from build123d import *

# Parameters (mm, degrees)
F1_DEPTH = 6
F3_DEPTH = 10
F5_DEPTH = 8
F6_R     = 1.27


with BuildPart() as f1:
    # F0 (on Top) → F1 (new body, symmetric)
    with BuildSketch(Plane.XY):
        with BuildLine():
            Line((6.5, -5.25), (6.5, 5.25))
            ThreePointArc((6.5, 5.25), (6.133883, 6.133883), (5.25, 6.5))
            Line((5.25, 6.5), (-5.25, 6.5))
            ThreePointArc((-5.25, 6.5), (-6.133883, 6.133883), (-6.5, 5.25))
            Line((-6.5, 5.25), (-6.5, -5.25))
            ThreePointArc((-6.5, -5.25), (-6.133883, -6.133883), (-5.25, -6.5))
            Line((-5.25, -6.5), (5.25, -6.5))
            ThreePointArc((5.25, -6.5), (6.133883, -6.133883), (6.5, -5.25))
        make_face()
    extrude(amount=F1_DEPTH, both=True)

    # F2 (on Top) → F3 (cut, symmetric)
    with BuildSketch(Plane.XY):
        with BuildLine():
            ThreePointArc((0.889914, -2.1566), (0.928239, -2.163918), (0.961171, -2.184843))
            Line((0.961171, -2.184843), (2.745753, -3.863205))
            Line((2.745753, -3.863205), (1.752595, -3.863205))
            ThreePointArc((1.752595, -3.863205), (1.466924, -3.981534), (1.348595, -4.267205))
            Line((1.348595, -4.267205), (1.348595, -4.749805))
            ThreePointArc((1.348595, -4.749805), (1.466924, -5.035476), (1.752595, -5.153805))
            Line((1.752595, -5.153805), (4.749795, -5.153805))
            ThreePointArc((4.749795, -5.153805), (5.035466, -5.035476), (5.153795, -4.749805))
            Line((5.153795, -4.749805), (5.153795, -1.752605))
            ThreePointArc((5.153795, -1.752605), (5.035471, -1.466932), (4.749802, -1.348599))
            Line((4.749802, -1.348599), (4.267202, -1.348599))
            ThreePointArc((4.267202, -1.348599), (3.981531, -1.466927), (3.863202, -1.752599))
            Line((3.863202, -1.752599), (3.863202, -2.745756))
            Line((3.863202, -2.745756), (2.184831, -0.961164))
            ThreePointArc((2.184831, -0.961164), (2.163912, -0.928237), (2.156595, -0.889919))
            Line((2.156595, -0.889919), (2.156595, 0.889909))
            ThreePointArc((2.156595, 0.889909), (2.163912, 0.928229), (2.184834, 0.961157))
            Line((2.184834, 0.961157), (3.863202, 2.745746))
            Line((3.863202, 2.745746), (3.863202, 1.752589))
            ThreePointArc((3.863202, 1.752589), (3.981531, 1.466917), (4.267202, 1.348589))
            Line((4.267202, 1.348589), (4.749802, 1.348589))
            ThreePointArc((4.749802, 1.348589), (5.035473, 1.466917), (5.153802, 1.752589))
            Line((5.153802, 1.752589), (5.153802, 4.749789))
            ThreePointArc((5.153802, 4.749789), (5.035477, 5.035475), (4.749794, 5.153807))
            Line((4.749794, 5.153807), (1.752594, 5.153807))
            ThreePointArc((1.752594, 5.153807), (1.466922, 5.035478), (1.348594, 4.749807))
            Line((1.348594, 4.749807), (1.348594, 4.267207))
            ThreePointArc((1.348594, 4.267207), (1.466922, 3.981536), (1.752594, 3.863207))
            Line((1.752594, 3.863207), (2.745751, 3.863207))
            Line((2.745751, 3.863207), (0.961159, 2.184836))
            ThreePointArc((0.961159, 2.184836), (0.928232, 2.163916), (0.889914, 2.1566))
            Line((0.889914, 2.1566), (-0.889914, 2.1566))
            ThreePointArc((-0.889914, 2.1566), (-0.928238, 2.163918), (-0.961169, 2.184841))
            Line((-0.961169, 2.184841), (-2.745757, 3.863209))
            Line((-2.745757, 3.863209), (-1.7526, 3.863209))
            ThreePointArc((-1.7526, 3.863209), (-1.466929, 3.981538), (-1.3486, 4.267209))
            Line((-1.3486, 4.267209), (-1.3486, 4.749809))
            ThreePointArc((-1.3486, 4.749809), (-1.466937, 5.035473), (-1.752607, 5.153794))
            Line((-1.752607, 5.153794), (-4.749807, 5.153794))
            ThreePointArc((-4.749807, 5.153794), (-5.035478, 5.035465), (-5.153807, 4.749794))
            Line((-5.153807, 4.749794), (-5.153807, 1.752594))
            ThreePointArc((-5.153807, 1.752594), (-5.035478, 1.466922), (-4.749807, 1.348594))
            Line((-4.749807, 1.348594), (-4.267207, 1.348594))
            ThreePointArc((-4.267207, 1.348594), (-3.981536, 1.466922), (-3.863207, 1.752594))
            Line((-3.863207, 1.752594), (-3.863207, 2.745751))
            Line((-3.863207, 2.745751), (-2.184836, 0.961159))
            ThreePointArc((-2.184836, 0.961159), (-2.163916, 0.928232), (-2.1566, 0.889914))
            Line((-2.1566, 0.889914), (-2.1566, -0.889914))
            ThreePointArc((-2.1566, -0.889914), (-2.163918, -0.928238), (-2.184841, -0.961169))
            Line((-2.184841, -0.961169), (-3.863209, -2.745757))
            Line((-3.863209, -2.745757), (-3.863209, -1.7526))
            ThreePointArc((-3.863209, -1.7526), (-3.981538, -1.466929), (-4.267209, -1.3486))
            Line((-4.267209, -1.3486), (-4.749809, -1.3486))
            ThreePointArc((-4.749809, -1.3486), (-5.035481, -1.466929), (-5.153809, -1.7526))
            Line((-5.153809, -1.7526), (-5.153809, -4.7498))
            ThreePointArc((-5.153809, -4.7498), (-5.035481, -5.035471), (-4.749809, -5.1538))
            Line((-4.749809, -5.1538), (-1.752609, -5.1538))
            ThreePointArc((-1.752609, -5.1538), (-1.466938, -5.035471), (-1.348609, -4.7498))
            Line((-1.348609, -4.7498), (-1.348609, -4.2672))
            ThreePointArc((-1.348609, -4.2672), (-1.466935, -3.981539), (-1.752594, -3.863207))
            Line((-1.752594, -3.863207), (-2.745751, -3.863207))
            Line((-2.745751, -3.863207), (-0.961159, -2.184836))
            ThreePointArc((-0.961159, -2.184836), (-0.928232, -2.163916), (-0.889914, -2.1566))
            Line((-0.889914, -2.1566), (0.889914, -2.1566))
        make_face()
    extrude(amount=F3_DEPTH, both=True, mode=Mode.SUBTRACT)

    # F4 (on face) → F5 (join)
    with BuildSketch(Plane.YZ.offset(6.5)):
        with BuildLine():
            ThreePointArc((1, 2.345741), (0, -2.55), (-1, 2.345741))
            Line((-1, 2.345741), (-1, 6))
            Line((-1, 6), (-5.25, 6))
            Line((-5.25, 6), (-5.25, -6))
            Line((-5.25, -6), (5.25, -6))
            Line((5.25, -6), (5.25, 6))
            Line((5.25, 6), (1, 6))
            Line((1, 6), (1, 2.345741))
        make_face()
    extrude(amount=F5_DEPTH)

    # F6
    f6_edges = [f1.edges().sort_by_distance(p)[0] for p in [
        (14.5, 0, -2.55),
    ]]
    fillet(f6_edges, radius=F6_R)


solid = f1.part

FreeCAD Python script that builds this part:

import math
import FreeCAD as App
import Part
import Sketcher


def edges_at(feature, points):
    """Names of the edges that pass closest to the given points."""
    edges = feature.Shape.Edges
    near = lambda p: min(range(len(edges)), key=lambda i: edges[i].distToShape(Part.Vertex(*p))[0])
    return sorted({f"Edge{near(p) + 1}" for p in points})

doc = App.newDocument("Part")
body = doc.addObject("PartDesign::Body", "Body")

sketch1 = body.newObject("Sketcher::SketchObject", "Sketch")
sketch1.AttachmentSupport = (doc.getObject("XY_Plane"), [""])
sketch1.MapMode = "FlatFace"
sketch1.addGeometry([
    Part.LineSegment(App.Vector(6.5, -5.2, 0), App.Vector(6.5, 5.2, 0)),
    Part.ArcOfCircle(Part.Circle(App.Vector(5.2, 5.2, 0), App.Vector(0, 0, 1), 1.3), math.radians(0), math.radians(90)),
    Part.LineSegment(App.Vector(5.2, 6.5, 0), App.Vector(-5.2, 6.5, 0)),
    Part.ArcOfCircle(Part.Circle(App.Vector(-5.2, 5.2, 0), App.Vector(0, 0, 1), 1.3), math.radians(90), math.radians(180)),
    Part.LineSegment(App.Vector(-6.5, 5.2, 0), App.Vector(-6.5, -5.2, 0)),
    Part.ArcOfCircle(Part.Circle(App.Vector(-5.2, -5.2, 0), App.Vector(0, 0, 1), 1.3), math.radians(-180), math.radians(-90)),
    Part.LineSegment(App.Vector(-5.2, -6.5, 0), App.Vector(5.2, -6.5, 0)),
    Part.ArcOfCircle(Part.Circle(App.Vector(5.2, -5.2, 0), App.Vector(0, 0, 1), 1.3), math.radians(-90), math.radians(0)),
], False)
sketch1.addConstraint([
    Sketcher.Constraint("Tangent", 0, 2, 1, 1),
    Sketcher.Constraint("Tangent", 1, 2, 2, 1),
    Sketcher.Constraint("Tangent", 2, 2, 3, 1),
    Sketcher.Constraint("Tangent", 3, 2, 4, 1),
    Sketcher.Constraint("Tangent", 4, 2, 5, 1),
    Sketcher.Constraint("Tangent", 5, 2, 6, 1),
    Sketcher.Constraint("Tangent", 6, 2, 7, 1),
    Sketcher.Constraint("Tangent", 7, 2, 0, 1),
    Sketcher.Constraint("Vertical", 0),
    Sketcher.Constraint("Horizontal", 2),
    Sketcher.Constraint("Vertical", 4),
    Sketcher.Constraint("Horizontal", 6),
    Sketcher.Constraint("Equal", 1, 3),
    Sketcher.Constraint("Equal", 3, 5),
    Sketcher.Constraint("Equal", 5, 7),
    Sketcher.Constraint("Symmetric", 1, 3, 5, 3, -1, 1),
    Sketcher.Constraint("Equal", 6, 0),
    Sketcher.Constraint("Radius", 1, 1.250002),
    Sketcher.Constraint("DistanceX", 2, 2, 2, 1, 10.5),
])
pad1 = body.newObject("PartDesign::Pad", "Pad")
pad1.Profile = sketch1
pad1.Length = 12
pad1.Midplane = True

sketch2 = body.newObject("Sketcher::SketchObject", "Sketch001")
sketch2.AttachmentSupport = (doc.getObject("XY_Plane"), [""])
sketch2.MapMode = "FlatFace"
sketch2.addGeometry([
    Part.ArcOfCircle(Part.Circle(App.Vector(0.89, -2.26, 0), App.Vector(0, 0, 1), 0.1), math.radians(47), math.radians(90)),
    Part.LineSegment(App.Vector(0.96, -2.18, 0), App.Vector(2.75, -3.86, 0)),
    Part.LineSegment(App.Vector(2.75, -3.86, 0), App.Vector(1.75, -3.86, 0)),
    Part.ArcOfCircle(Part.Circle(App.Vector(1.75, -4.27, 0), App.Vector(0, 0, 1), 0.4), math.radians(90), math.radians(180)),
    Part.LineSegment(App.Vector(1.35, -4.27, 0), App.Vector(1.35, -4.75, 0)),
    Part.ArcOfCircle(Part.Circle(App.Vector(1.75, -4.75, 0), App.Vector(0, 0, 1), 0.4), math.radians(-180), math.radians(-90)),
    Part.LineSegment(App.Vector(1.75, -5.15, 0), App.Vector(4.75, -5.15, 0)),
    Part.ArcOfCircle(Part.Circle(App.Vector(4.75, -4.75, 0), App.Vector(0, 0, 1), 0.4), math.radians(-90), math.radians(0)),
    Part.LineSegment(App.Vector(5.15, -4.75, 0), App.Vector(5.15, -1.75, 0)),
    Part.ArcOfCircle(Part.Circle(App.Vector(4.75, -1.75, 0), App.Vector(0, 0, 1), 0.4), math.radians(0), math.radians(90)),
    Part.LineSegment(App.Vector(4.75, -1.35, 0), App.Vector(4.27, -1.35, 0)),
    Part.ArcOfCircle(Part.Circle(App.Vector(4.27, -1.75, 0), App.Vector(0, 0, 1), 0.4), math.radians(90), math.radians(180)),
    Part.LineSegment(App.Vector(3.86, -1.75, 0), App.Vector(3.86, -2.75, 0)),
    Part.LineSegment(App.Vector(3.86, -2.75, 0), App.Vector(2.18, -0.96, 0)),
    Part.ArcOfCircle(Part.Circle(App.Vector(2.26, -0.89, 0), App.Vector(0, 0, 1), 0.1), math.radians(-180), math.radians(-137)),
    Part.LineSegment(App.Vector(2.16, -0.89, 0), App.Vector(2.16, 0.89, 0)),
    Part.ArcOfCircle(Part.Circle(App.Vector(2.26, 0.89, 0), App.Vector(0, 0, 1), 0.1), math.radians(137), math.radians(180)),
    Part.LineSegment(App.Vector(2.18, 0.96, 0), App.Vector(3.86, 2.75, 0)),
    Part.LineSegment(App.Vector(3.86, 2.75, 0), App.Vector(3.86, 1.75, 0)),
    Part.ArcOfCircle(Part.Circle(App.Vector(4.27, 1.75, 0), App.Vector(0, 0, 1), 0.4), math.radians(180), math.radians(270)),
    Part.LineSegment(App.Vector(4.27, 1.35, 0), App.Vector(4.75, 1.35, 0)),
    Part.ArcOfCircle(Part.Circle(App.Vector(4.75, 1.75, 0), App.Vector(0, 0, 1), 0.4), math.radians(-90), math.radians(0)),
    Part.LineSegment(App.Vector(5.15, 1.75, 0), App.Vector(5.15, 4.75, 0)),
    Part.ArcOfCircle(Part.Circle(App.Vector(4.75, 4.75, 0), App.Vector(0, 0, 1), 0.4), math.radians(0), math.radians(90)),
    Part.LineSegment(App.Vector(4.75, 5.15, 0), App.Vector(1.75, 5.15, 0)),
    Part.ArcOfCircle(Part.Circle(App.Vector(1.75, 4.75, 0), App.Vector(0, 0, 1), 0.4), math.radians(90), math.radians(180)),
    Part.LineSegment(App.Vector(1.35, 4.75, 0), App.Vector(1.35, 4.27, 0)),
    Part.ArcOfCircle(Part.Circle(App.Vector(1.75, 4.27, 0), App.Vector(0, 0, 1), 0.4), math.radians(180), math.radians(270)),
    Part.LineSegment(App.Vector(1.75, 3.86, 0), App.Vector(2.75, 3.86, 0)),
    Part.LineSegment(App.Vector(2.75, 3.86, 0), App.Vector(0.96, 2.18, 0)),
    Part.ArcOfCircle(Part.Circle(App.Vector(0.89, 2.26, 0), App.Vector(0, 0, 1), 0.1), math.radians(-90), math.radians(-47)),
    Part.LineSegment(App.Vector(0.89, 2.16, 0), App.Vector(-0.89, 2.16, 0)),
    Part.ArcOfCircle(Part.Circle(App.Vector(-0.89, 2.26, 0), App.Vector(0, 0, 1), 0.1), math.radians(-133), math.radians(-90)),
    Part.LineSegment(App.Vector(-0.96, 2.18, 0), App.Vector(-2.75, 3.86, 0)),
    Part.LineSegment(App.Vector(-2.75, 3.86, 0), App.Vector(-1.75, 3.86, 0)),
    Part.ArcOfCircle(Part.Circle(App.Vector(-1.75, 4.27, 0), App.Vector(0, 0, 1), 0.4), math.radians(-90), math.radians(0)),
    Part.LineSegment(App.Vector(-1.35, 4.27, 0), App.Vector(-1.35, 4.75, 0)),
    Part.ArcOfCircle(Part.Circle(App.Vector(-1.75, 4.75, 0), App.Vector(0, 0, 1), 0.4), math.radians(0), math.radians(90)),
    Part.LineSegment(App.Vector(-1.75, 5.15, 0), App.Vector(-4.75, 5.15, 0)),
    Part.ArcOfCircle(Part.Circle(App.Vector(-4.75, 4.75, 0), App.Vector(0, 0, 1), 0.4), math.radians(90), math.radians(180)),
    Part.LineSegment(App.Vector(-5.15, 4.75, 0), App.Vector(-5.15, 1.75, 0)),
    Part.ArcOfCircle(Part.Circle(App.Vector(-4.75, 1.75, 0), App.Vector(0, 0, 1), 0.4), math.radians(180), math.radians(270)),
    Part.LineSegment(App.Vector(-4.75, 1.35, 0), App.Vector(-4.27, 1.35, 0)),
    Part.ArcOfCircle(Part.Circle(App.Vector(-4.27, 1.75, 0), App.Vector(0, 0, 1), 0.4), math.radians(-90), math.radians(0)),
    Part.LineSegment(App.Vector(-3.86, 1.75, 0), App.Vector(-3.86, 2.75, 0)),
    Part.LineSegment(App.Vector(-3.86, 2.75, 0), App.Vector(-2.18, 0.96, 0)),
    Part.ArcOfCircle(Part.Circle(App.Vector(-2.26, 0.89, 0), App.Vector(0, 0, 1), 0.1), math.radians(0), math.radians(43)),
    Part.LineSegment(App.Vector(-2.16, 0.89, 0), App.Vector(-2.16, -0.89, 0)),
    Part.ArcOfCircle(Part.Circle(App.Vector(-2.26, -0.89, 0), App.Vector(0, 0, 1), 0.1), math.radians(-43), math.radians(0)),
    Part.LineSegment(App.Vector(-2.18, -0.96, 0), App.Vector(-3.86, -2.75, 0)),
    Part.LineSegment(App.Vector(-3.86, -2.75, 0), App.Vector(-3.86, -1.75, 0)),
    Part.ArcOfCircle(Part.Circle(App.Vector(-4.27, -1.75, 0), App.Vector(0, 0, 1), 0.4), math.radians(0), math.radians(90)),
    Part.LineSegment(App.Vector(-4.27, -1.35, 0), App.Vector(-4.75, -1.35, 0)),
    Part.ArcOfCircle(Part.Circle(App.Vector(-4.75, -1.75, 0), App.Vector(0, 0, 1), 0.4), math.radians(90), math.radians(180)),
    Part.LineSegment(App.Vector(-5.15, -1.75, 0), App.Vector(-5.15, -4.75, 0)),
    Part.ArcOfCircle(Part.Circle(App.Vector(-4.75, -4.75, 0), App.Vector(0, 0, 1), 0.4), math.radians(180), math.radians(270)),
    Part.LineSegment(App.Vector(-4.75, -5.15, 0), App.Vector(-1.75, -5.15, 0)),
    Part.ArcOfCircle(Part.Circle(App.Vector(-1.75, -4.75, 0), App.Vector(0, 0, 1), 0.4), math.radians(-90), math.radians(0)),
    Part.LineSegment(App.Vector(-1.35, -4.75, 0), App.Vector(-1.35, -4.27, 0)),
    Part.ArcOfCircle(Part.Circle(App.Vector(-1.75, -4.27, 0), App.Vector(0, 0, 1), 0.4), math.radians(0), math.radians(90)),
    Part.LineSegment(App.Vector(-1.75, -3.86, 0), App.Vector(-2.75, -3.86, 0)),
    Part.LineSegment(App.Vector(-2.75, -3.86, 0), App.Vector(-0.96, -2.18, 0)),
    Part.ArcOfCircle(Part.Circle(App.Vector(-0.89, -2.26, 0), App.Vector(0, 0, 1), 0.1), math.radians(90), math.radians(133)),
    Part.LineSegment(App.Vector(-0.89, -2.16, 0), App.Vector(0.89, -2.16, 0)),
], False)
sketch2.addConstraint([
    Sketcher.Constraint("Coincident", 0, 1, 1, 1),
    Sketcher.Constraint("Coincident", 1, 2, 2, 1),
    Sketcher.Constraint("Tangent", 2, 2, 3, 1),
    Sketcher.Constraint("Tangent", 3, 2, 4, 1),
    Sketcher.Constraint("Tangent", 4, 2, 5, 1),
    Sketcher.Constraint("Tangent", 5, 2, 6, 1),
    Sketcher.Constraint("Tangent", 6, 2, 7, 1),
    Sketcher.Constraint("Tangent", 7, 2, 8, 1),
    Sketcher.Constraint("Coincident", 8, 2, 9, 1),
    Sketcher.Constraint("Coincident", 9, 2, 10, 1),
    Sketcher.Constraint("Coincident", 10, 2, 11, 1),
    Sketcher.Constraint("Coincident", 11, 2, 12, 1),
    Sketcher.Constraint("Coincident", 12, 2, 13, 1),
    Sketcher.Constraint("Coincident", 13, 2, 14, 2),
    Sketcher.Constraint("Coincident", 14, 1, 15, 1),
    Sketcher.Constraint("Coincident", 15, 2, 16, 2),
    Sketcher.Constraint("Coincident", 16, 1, 17, 1),
    Sketcher.Constraint("Coincident", 17, 2, 18, 1),
    Sketcher.Constraint("Coincident", 18, 2, 19, 1),
    Sketcher.Constraint("Coincident", 19, 2, 20, 1),
    Sketcher.Constraint("Coincident", 20, 2, 21, 1),
    Sketcher.Constraint("Coincident", 21, 2, 22, 1),
    Sketcher.Constraint("Coincident", 22, 2, 23, 1),
    Sketcher.Constraint("Coincident", 23, 2, 24, 1),
    Sketcher.Constraint("Coincident", 24, 2, 25, 1),
    Sketcher.Constraint("Coincident", 25, 2, 26, 1),
    Sketcher.Constraint("Coincident", 26, 2, 27, 1),
    Sketcher.Constraint("Coincident", 27, 2, 28, 1),
    Sketcher.Constraint("Coincident", 28, 2, 29, 1),
    Sketcher.Constraint("Coincident", 29, 2, 30, 2),
    Sketcher.Constraint("Coincident", 30, 1, 31, 1),
    Sketcher.Constraint("Coincident", 31, 2, 32, 2),
    Sketcher.Constraint("Coincident", 32, 1, 33, 1),
    Sketcher.Constraint("Coincident", 33, 2, 34, 1),
    Sketcher.Constraint("Tangent", 34, 2, 35, 1),
    Sketcher.Constraint("Tangent", 35, 2, 36, 1),
    Sketcher.Constraint("Coincident", 36, 2, 37, 1),
    Sketcher.Constraint("Coincident", 37, 2, 38, 1),
    Sketcher.Constraint("Tangent", 38, 2, 39, 1),
    Sketcher.Constraint("Tangent", 39, 2, 40, 1),
    Sketcher.Constraint("Coincident", 40, 2, 41, 1),
    Sketcher.Constraint("Coincident", 41, 2, 42, 1),
    Sketcher.Constraint("Coincident", 42, 2, 43, 1),
    Sketcher.Constraint("Coincident", 43, 2, 44, 1),
    Sketcher.Constraint("Coincident", 44, 2, 45, 1),
    Sketcher.Constraint("Coincident", 45, 2, 46, 2),
    Sketcher.Constraint("Coincident", 46, 1, 47, 1),
    Sketcher.Constraint("Coincident", 47, 2, 48, 2),
    Sketcher.Constraint("Coincident", 48, 1, 49, 1),
    Sketcher.Constraint("Coincident", 49, 2, 50, 1),
    Sketcher.Constraint("Tangent", 50, 2, 51, 1),
    Sketcher.Constraint("Tangent", 51, 2, 52, 1),
    Sketcher.Constraint("Coincident", 52, 2, 53, 1),
    Sketcher.Constraint("Coincident", 53, 2, 54, 1),
    Sketcher.Constraint("Coincident", 54, 2, 55, 1),
    Sketcher.Constraint("Coincident", 55, 2, 56, 1),
    Sketcher.Constraint("Tangent", 56, 2, 57, 1),
    Sketcher.Constraint("Tangent", 57, 2, 58, 1),
    Sketcher.Constraint("Coincident", 58, 2, 59, 1),
    Sketcher.Constraint("Coincident", 59, 2, 60, 1),
    Sketcher.Constraint("Coincident", 60, 2, 61, 1),
    Sketcher.Constraint("Coincident", 61, 2, 62, 2),
    Sketcher.Constraint("Coincident", 62, 1, 63, 1),
    Sketcher.Constraint("Coincident", 63, 2, 0, 2),
    Sketcher.Constraint("Horizontal", 2),
    Sketcher.Constraint("Vertical", 4),
    Sketcher.Constraint("Horizontal", 6),
    Sketcher.Constraint("Vertical", 8),
    Sketcher.Constraint("Horizontal", 10),
    Sketcher.Constraint("Vertical", 12),
    Sketcher.Constraint("Vertical", 15),
    Sketcher.Constraint("Vertical", 18),
    Sketcher.Constraint("Horizontal", 20),
    Sketcher.Constraint("Vertical", 22),
    Sketcher.Constraint("Horizontal", 24),
    Sketcher.Constraint("Vertical", 26),
    Sketcher.Constraint("Horizontal", 28),
    Sketcher.Constraint("Horizontal", 31),
    Sketcher.Constraint("Horizontal", 34),
    Sketcher.Constraint("Vertical", 36),
    Sketcher.Constraint("Horizontal", 38),
    Sketcher.Constraint("Vertical", 40),
    Sketcher.Constraint("Horizontal", 42),
    Sketcher.Constraint("Vertical", 44),
    Sketcher.Constraint("Vertical", 47),
    Sketcher.Constraint("Vertical", 50),
    Sketcher.Constraint("Horizontal", 52),
    Sketcher.Constraint("Vertical", 54),
    Sketcher.Constraint("Horizontal", 56),
    Sketcher.Constraint("Vertical", 58),
    Sketcher.Constraint("Horizontal", 60),
    Sketcher.Constraint("Horizontal", 63),
    Sketcher.Constraint("Equal", 3, 5),
    Sketcher.Constraint("Equal", 5, 7),
    Sketcher.Constraint("Equal", 7, 9),
    Sketcher.Constraint("Equal", 9, 11),
    Sketcher.Constraint("Equal", 0, 14),
    Sketcher.Constraint("Equal", 11, 19),
    Sketcher.Constraint("Equal", 19, 21),
    Sketcher.Constraint("Equal", 21, 23),
    Sketcher.Constraint("Equal", 23, 25),
    Sketcher.Constraint("Equal", 25, 27),
    Sketcher.Constraint("Equal", 16, 30),
    Sketcher.Constraint("Equal", 27, 35),
    Sketcher.Constraint("Equal", 35, 37),
    Sketcher.Constraint("Equal", 37, 39),
    Sketcher.Constraint("Equal", 39, 41),
    Sketcher.Constraint("Equal", 41, 43),
    Sketcher.Constraint("Equal", 30, 46),
    Sketcher.Constraint("Equal", 32, 48),
    Sketcher.Constraint("Equal", 43, 51),
    Sketcher.Constraint("Equal", 51, 53),
    Sketcher.Constraint("Equal", 53, 55),
    Sketcher.Constraint("Equal", 55, 57),
    Sketcher.Constraint("Equal", 57, 59),
    Sketcher.Constraint("Equal", 46, 62),
    Sketcher.Constraint("Symmetric", 0, 3, 32, 3, -1, 1),
    Sketcher.Constraint("Symmetric", 3, 3, 35, 3, -1, 1),
    Sketcher.Constraint("Symmetric", 11, 3, 43, 3, -1, 1),
    Sketcher.Constraint("Symmetric", 14, 3, 46, 3, -1, 1),
    Sketcher.Constraint("Symmetric", 23, 3, 55, 3, -1, 1),
    Sketcher.Constraint("Symmetric", 30, 3, 62, 3, -1, 1),
    Sketcher.Constraint("Symmetric", 13, 2, 45, 2, -1, 1),
    Sketcher.Constraint("Symmetric", 27, 2, 59, 2, -1, 1),
    Sketcher.Constraint("Symmetric", 27, 3, 35, 3, -2),
    Sketcher.Constraint("Symmetric", 21, 3, 41, 3, -2),
    Sketcher.Constraint("Symmetric", 11, 3, 51, 3, -2),
    Sketcher.Constraint("Symmetric", 18, 2, 43, 2, -2),
    Sketcher.Constraint("Symmetric", 16, 1, 45, 2, -2),
    Sketcher.Constraint("Symmetric", 7, 3, 23, 3, -1),
    Sketcher.Constraint("Symmetric", 38, 2, 55, 2, -1),
    Sketcher.Constraint("Perpendicular", 1, 17),
    Sketcher.Constraint("Perpendicular", 13, 29),
    Sketcher.Constraint("Perpendicular", 17, 33),
    Sketcher.Constraint("Perpendicular", 29, 45),
    Sketcher.Constraint("Perpendicular", 33, 49),
    Sketcher.Constraint("Perpendicular", 45, 61),
    Sketcher.Constraint("Horizontal", 53, 3, 11, 2),
    Sketcher.Constraint("Horizontal", 16, 3, 15, 2),
    Sketcher.Constraint("Horizontal", 21, 3, 18, 2),
    Sketcher.Constraint("Horizontal", 18, 2, 21, 2),
    Sketcher.Constraint("Horizontal", 23, 3, 25, 2),
    Sketcher.Constraint("Horizontal", 27, 3, 26, 2),
    Sketcher.Constraint("Horizontal", 25, 3, 36, 2),
    Sketcher.Constraint("Horizontal", 43, 3, 40, 2),
    Sketcher.Constraint("Horizontal", 48, 3, 47, 2),
    Sketcher.Constraint("Horizontal", 12, 2, 49, 2),
    Sketcher.Constraint("Horizontal", 50, 2, 53, 2),
    Sketcher.Constraint("Horizontal", 57, 3, 54, 2),
    Sketcher.Constraint("Vertical", 0, 3, 30, 3),
    Sketcher.Constraint("Vertical", 23, 3, 9, 2),
    Sketcher.Constraint("Vertical", 19, 3, 10, 2),
    Sketcher.Constraint("Vertical", 10, 2, 19, 2),
    Sketcher.Constraint("Vertical", 9, 2, 20, 2),
    Sketcher.Constraint("Vertical", 6, 2, 23, 2),
    Sketcher.Constraint("Vertical", 5, 2, 24, 2),
    Sketcher.Constraint("Vertical", 24, 2, 27, 2),
    Sketcher.Constraint("Vertical", 0, 3, 30, 1),
    Sketcher.Constraint("Vertical", 62, 3, 31, 2),
    Sketcher.Constraint("Vertical", 38, 2, 41, 2),
    Sketcher.Constraint("Vertical", 43, 3, 42, 2),
    Sketcher.Constraint("Vertical", 55, 3, 52, 2),
    Sketcher.Constraint("Vertical", 31, 2, 62, 1),
    Sketcher.Constraint("Vertical", 30, 1, 63, 2),
    Sketcher.Constraint("Equal", 2, 28),
    Sketcher.Constraint("Equal", 24, 38),
    Sketcher.Constraint("Equal", 38, 56),
    Sketcher.Constraint("Equal", 52, 4),
    Sketcher.Constraint("Equal", 56, 8),
    Sketcher.Constraint("Equal", 60, 12),
    Sketcher.Constraint("Equal", 63, 15),
    Sketcher.Constraint("Equal", 8, 22),
    Sketcher.Constraint("Equal", 22, 40),
    Sketcher.Constraint("Equal", 15, 47),
    Sketcher.Constraint("Equal", 36, 58),
    Sketcher.Constraint("Equal", 13, 29),
    Sketcher.Constraint("Equal", 17, 33),
    Sketcher.Constraint("Equal", 33, 49),
    Sketcher.Constraint("Equal", 45, 61),
    Sketcher.Constraint("Radius", 3, 0.404),
    Sketcher.Constraint("Radius", 16, 0.103999),
    Sketcher.Constraint("DistanceX", 6, 1, 6, 2, 2.9972),
    Sketcher.Constraint("DistanceX", 10, 2, 10, 1, 0.4826),
    Sketcher.Constraint("DistanceX", 2, 2, 2, 1, 0.993158),
    Sketcher.Constraint("DistanceX", -1, 1, 11, 3, 4.267201),
    Sketcher.Constraint("DistanceY", 51, 3, -1, 1, 1.7526),
    Sketcher.Constraint("DistanceY", -1, 1, 30, 1, 2.1566),
    Sketcher.Constraint("DistanceX", 46, 1, -1, 1, 2.1566),
    Sketcher.Constraint("Distance", 33, 2.449831),
    Sketcher.Constraint("DistanceX", 31, 2, 31, 1, 1.779828),
    Sketcher.Constraint("DistanceX", -1, 1, 0, 1, 0.961171),
])
pocket1 = body.newObject("PartDesign::Pocket", "Pocket")
pocket1.Profile = sketch2
pocket1.Length = 20
pocket1.Midplane = True

sketch3 = body.newObject("Sketcher::SketchObject", "Sketch002")
sketch3.AttachmentSupport = (doc.getObject("YZ_Plane"), [""])
sketch3.MapMode = "FlatFace"
sketch3.AttachmentOffset = App.Placement(App.Vector(0, 0, 6.5), App.Rotation())
sketch3.addGeometry([
    Part.ArcOfCircle(Part.Circle(App.Vector(0, 0, 0), App.Vector(0, 0, 1), 2.6), math.radians(113), math.radians(427)),
    Part.LineSegment(App.Vector(-1, 2.3, 0), App.Vector(-1, 6, 0)),
    Part.LineSegment(App.Vector(-1, 6, 0), App.Vector(-5.2, 6, 0)),
    Part.LineSegment(App.Vector(-5.2, 6, 0), App.Vector(-5.2, -6, 0)),
    Part.LineSegment(App.Vector(-5.2, -6, 0), App.Vector(5.2, -6, 0)),
    Part.LineSegment(App.Vector(5.2, -6, 0), App.Vector(5.2, 6, 0)),
    Part.LineSegment(App.Vector(5.2, 6, 0), App.Vector(1, 6, 0)),
    Part.LineSegment(App.Vector(1, 6, 0), App.Vector(1, 2.3, 0)),
], False)
sketch3.addConstraint([
    Sketcher.Constraint("Coincident", 0, 1, 1, 1),
    Sketcher.Constraint("Coincident", 1, 2, 2, 1),
    Sketcher.Constraint("Coincident", 2, 2, 3, 1),
    Sketcher.Constraint("Coincident", 3, 2, 4, 1),
    Sketcher.Constraint("Coincident", 4, 2, 5, 1),
    Sketcher.Constraint("Coincident", 5, 2, 6, 1),
    Sketcher.Constraint("Coincident", 6, 2, 7, 1),
    Sketcher.Constraint("Coincident", 7, 2, 0, 2),
    Sketcher.Constraint("Vertical", 1),
    Sketcher.Constraint("Horizontal", 2),
    Sketcher.Constraint("Vertical", 3),
    Sketcher.Constraint("Horizontal", 4),
    Sketcher.Constraint("Vertical", 5),
    Sketcher.Constraint("Horizontal", 6),
    Sketcher.Constraint("Vertical", 7),
    Sketcher.Constraint("Coincident", 0, 3, -1, 1),
    Sketcher.Constraint("Symmetric", 2, 2, 4, 2, -1, 1),
    Sketcher.Constraint("Symmetric", 1, 2, 6, 2, -2),
    Sketcher.Constraint("DistanceY", 3, 2, 3, 1, 12.0),
    Sketcher.Constraint("Radius", 0, 2.55),
    Sketcher.Constraint("DistanceX", 4, 1, 4, 2, 10.5),
    Sketcher.Constraint("DistanceX", 0, 1, -1, 1, 1.0),
])
pad2 = body.newObject("PartDesign::Pad", "Pad001")
pad2.Profile = sketch3
pad2.Length = 8
doc.recompute()

fillet = body.newObject("PartDesign::Fillet", "Fillet")
fillet.Base = (pad2, edges_at(pad2, [(14.5, 0, -2.55)]))
fillet.Radius = 1.27

doc.recompute()
